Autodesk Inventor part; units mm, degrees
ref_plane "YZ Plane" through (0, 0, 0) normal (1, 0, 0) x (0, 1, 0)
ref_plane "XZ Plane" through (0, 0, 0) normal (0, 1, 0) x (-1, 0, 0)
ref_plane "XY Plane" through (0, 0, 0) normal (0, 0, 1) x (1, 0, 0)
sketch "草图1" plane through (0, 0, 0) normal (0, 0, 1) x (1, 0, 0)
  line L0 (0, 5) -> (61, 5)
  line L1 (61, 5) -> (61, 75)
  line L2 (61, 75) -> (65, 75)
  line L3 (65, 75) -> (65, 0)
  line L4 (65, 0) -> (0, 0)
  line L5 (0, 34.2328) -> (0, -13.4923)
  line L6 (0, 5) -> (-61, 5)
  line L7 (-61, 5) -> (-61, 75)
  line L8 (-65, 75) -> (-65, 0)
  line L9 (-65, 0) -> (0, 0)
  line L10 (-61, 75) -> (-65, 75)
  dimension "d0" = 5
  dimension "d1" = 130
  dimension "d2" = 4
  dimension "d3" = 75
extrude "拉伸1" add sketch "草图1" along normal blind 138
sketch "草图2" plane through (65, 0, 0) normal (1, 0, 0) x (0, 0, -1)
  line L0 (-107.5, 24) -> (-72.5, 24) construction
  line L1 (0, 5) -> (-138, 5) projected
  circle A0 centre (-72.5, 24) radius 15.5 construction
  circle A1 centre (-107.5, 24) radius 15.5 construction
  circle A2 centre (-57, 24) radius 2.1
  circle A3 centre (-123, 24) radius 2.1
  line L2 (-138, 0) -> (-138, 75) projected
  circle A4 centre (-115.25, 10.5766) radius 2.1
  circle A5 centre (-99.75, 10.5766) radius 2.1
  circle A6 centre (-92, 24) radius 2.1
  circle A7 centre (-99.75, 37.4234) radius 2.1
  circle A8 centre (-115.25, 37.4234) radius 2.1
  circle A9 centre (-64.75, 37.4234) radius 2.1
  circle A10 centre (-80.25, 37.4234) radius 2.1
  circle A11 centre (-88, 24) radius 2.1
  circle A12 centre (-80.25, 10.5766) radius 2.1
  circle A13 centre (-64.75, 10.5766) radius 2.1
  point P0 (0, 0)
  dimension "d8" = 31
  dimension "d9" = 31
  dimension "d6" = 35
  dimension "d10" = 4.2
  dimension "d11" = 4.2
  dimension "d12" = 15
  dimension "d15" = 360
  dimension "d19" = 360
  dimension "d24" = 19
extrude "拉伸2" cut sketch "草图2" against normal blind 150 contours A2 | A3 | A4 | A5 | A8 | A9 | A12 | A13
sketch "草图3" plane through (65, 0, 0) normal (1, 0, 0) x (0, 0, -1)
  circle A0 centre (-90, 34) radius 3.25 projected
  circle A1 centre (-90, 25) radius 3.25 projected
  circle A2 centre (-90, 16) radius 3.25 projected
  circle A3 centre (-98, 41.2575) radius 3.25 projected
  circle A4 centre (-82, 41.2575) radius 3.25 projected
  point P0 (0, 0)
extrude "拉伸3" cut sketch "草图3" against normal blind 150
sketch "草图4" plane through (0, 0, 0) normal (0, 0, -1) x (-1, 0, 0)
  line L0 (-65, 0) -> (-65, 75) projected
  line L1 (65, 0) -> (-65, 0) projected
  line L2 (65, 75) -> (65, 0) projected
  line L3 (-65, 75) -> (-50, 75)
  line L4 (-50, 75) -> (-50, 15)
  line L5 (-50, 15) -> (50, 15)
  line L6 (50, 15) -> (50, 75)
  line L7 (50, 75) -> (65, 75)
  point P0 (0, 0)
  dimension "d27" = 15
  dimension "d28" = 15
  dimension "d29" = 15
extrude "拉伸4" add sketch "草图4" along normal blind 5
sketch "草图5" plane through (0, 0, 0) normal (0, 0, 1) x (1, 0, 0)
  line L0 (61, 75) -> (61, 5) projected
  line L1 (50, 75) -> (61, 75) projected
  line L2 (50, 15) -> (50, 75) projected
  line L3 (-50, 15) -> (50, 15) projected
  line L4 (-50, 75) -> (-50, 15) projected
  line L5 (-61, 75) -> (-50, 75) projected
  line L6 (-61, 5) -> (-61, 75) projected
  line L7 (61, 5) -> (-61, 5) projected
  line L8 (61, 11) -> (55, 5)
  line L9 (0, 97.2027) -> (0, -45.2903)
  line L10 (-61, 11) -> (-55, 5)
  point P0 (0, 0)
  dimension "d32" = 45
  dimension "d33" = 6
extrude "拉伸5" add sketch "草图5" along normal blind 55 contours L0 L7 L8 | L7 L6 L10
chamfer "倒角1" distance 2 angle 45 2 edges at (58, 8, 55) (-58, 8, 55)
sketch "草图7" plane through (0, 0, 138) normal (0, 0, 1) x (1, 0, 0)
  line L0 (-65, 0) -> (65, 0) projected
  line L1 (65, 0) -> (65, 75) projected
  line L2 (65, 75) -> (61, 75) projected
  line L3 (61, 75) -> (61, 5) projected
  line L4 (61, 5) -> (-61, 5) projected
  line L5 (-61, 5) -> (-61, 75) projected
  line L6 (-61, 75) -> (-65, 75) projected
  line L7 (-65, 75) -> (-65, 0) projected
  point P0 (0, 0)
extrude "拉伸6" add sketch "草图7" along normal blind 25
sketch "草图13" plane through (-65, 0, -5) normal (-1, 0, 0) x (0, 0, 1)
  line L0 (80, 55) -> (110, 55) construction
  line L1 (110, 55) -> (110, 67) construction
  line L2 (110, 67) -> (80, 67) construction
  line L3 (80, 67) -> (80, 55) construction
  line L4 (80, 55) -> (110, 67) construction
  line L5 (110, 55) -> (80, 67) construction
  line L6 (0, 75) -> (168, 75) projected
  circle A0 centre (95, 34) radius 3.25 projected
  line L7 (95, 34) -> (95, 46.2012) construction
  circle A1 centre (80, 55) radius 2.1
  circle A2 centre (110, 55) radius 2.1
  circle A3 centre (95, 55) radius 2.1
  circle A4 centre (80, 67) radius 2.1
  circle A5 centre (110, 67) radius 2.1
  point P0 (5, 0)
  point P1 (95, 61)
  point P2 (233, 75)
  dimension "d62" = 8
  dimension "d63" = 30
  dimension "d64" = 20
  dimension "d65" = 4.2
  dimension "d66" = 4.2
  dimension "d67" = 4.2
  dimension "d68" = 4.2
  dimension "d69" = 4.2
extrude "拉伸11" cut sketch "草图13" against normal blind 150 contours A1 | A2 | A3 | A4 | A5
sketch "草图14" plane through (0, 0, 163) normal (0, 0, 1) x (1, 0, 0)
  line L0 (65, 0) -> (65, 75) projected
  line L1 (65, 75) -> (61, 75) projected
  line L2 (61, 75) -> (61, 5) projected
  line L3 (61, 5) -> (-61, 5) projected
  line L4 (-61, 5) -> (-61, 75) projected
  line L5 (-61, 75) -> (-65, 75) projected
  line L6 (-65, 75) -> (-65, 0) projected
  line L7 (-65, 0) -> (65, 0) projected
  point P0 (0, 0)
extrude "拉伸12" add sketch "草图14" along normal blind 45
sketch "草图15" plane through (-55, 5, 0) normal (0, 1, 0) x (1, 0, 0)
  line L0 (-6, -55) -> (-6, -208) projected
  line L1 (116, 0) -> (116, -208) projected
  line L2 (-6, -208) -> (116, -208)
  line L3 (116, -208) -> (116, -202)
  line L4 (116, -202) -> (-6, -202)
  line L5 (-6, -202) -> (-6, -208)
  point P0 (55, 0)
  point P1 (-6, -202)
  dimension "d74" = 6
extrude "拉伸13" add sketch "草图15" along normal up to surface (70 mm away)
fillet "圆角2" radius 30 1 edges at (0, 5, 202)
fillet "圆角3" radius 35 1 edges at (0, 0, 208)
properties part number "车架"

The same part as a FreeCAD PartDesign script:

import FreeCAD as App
import Part
import Sketcher
from FreeCAD import Vector


def edges_at(feature, points):
    """Names of the edges that pass closest to the given points."""
    edges = feature.Shape.Edges
    near = lambda p: min(range(len(edges)), key=lambda i: edges[i].distToShape(Part.Vertex(*p))[0])
    return sorted({f"Edge{near(p) + 1}" for p in points})


def add_polygon(sketch, points):
    """Adds a closed chain of lines whose ends are joined by coincident constraints."""
    first, n = sketch.GeometryCount, len(points)
    for a, b in zip(points, points[1:] + points[:1]):
        sketch.addGeometry(Part.LineSegment(App.Vector(*a, 0), App.Vector(*b, 0)), False)
    for i in range(n):
        sketch.addConstraint(Sketcher.Constraint("Coincident", first + i, 2, first + (i + 1) % n, 1))

doc = App.newDocument("Part")
body = doc.addObject("PartDesign::Body", "Body")

# Sketch on XY plane
sketch1 = body.newObject("Sketcher::SketchObject", "Sketch")
sketch1.AttachmentSupport = (doc.getObject("XY_Plane"), [""])
sketch1.MapMode = "FlatFace"
add_polygon(sketch1, [(61, 5), (-61, 5), (-61, 75), (-65, 75), (-65, 0), (65, 0), (65, 75), (61, 75)])  # lines 0-7
sketch1.addConstraint([
    Sketcher.Constraint("Horizontal", 0),
    Sketcher.Constraint("Vertical", 1),
    Sketcher.Constraint("Horizontal", 2),
    Sketcher.Constraint("Vertical", 3),
    Sketcher.Constraint("Horizontal", 4),
    Sketcher.Constraint("Vertical", 5),
    Sketcher.Constraint("Horizontal", 6),
    Sketcher.Constraint("Vertical", 7),
    Sketcher.Constraint("Symmetric", 3, 2, 4, 2, -1, 1),
    Sketcher.Constraint("Symmetric", 1, 2, 6, 2, -2),
    Sketcher.Constraint("DistanceX", 2, 2, 2, 1, 4.0),
    Sketcher.Constraint("DistanceX", 4, 1, 4, 2, 130.0),
    Sketcher.Constraint("DistanceY", 3, 2, 3, 1, 75.0),
    Sketcher.Constraint("DistanceY", -1, 1, 0, 2, 5.0),
])
pad1 = body.newObject("PartDesign::Pad", "Pad")
pad1.Profile = sketch1
pad1.Length = 138

# Sketch on YZ plane
sketch2 = body.newObject("Sketcher::SketchObject", "Sketch001")
sketch2.AttachmentSupport = (doc.getObject("YZ_Plane"), [""])
sketch2.MapMode = "FlatFace"
sketch2.AttachmentOffset = App.Placement(Vector(0, 0, 65), App.Rotation())
sketch2.addGeometry([
    Part.Circle(Vector(24, 57, 0), Vector(0, 0, 1), 2.1),  # 0
    Part.Circle(Vector(24, 123, 0), Vector(0, 0, 1), 2.1),  # 1
    Part.Circle(Vector(10.6, 115.2, 0), Vector(0, 0, 1), 2.1),  # 2
    Part.Circle(Vector(10.6, 99.8, 0), Vector(0, 0, 1), 2.1),  # 3
    Part.Circle(Vector(37.4, 115.2, 0), Vector(0, 0, 1), 2.1),  # 4
    Part.Circle(Vector(37.4, 64.8, 0), Vector(0, 0, 1), 2.1),  # 5
    Part.Circle(Vector(10.6, 80.2, 0), Vector(0, 0, 1), 2.1),  # 6
    Part.Circle(Vector(10.6, 64.8, 0), Vector(0, 0, 1), 2.1),  # 7
], False)
sketch2.addConstraint([
    Sketcher.Constraint("Equal", 0, 1),
    Sketcher.Constraint("Equal", 1, 2),
    Sketcher.Constraint("Equal", 2, 3),
    Sketcher.Constraint("Equal", 3, 4),
    Sketcher.Constraint("Equal", 4, 5),
    Sketcher.Constraint("Equal", 5, 6),
    Sketcher.Constraint("Equal", 6, 7),
    Sketcher.Constraint("Horizontal", 2, 3, 4, 3),
    Sketcher.Constraint("Horizontal", 5, 3, 7, 3),
    Sketcher.Constraint("Vertical", 0, 3, 1, 3),
    Sketcher.Constraint("Vertical", 2, 3, 3, 3),
    Sketcher.Constraint("Vertical", 4, 3, 5, 3),
    Sketcher.Constraint("Vertical", 3, 3, 6, 3),
    Sketcher.Constraint("Vertical", 6, 3, 7, 3),
    Sketcher.Constraint("Diameter", 0, 4.2),
    Sketcher.Constraint("DistanceY", 5, 3, 3, 3, 35.0),
    Sketcher.Constraint("DistanceY", 6, 3, 2, 3, 35.0),
    Sketcher.Constraint("DistanceX", -1, 1, 0, 3, 24.0),
    Sketcher.Constraint("DistanceY", -1, 1, 0, 3, 57.0),
    Sketcher.Constraint("DistanceY", -1, 1, 1, 3, 123.0),
    Sketcher.Constraint("DistanceY", 3, 3, 2, 3, 15.5),
    Sketcher.Constraint("DistanceY", -1, 1, 2, 3, 115.25),
    Sketcher.Constraint("DistanceX", -1, 1, 2, 3, 10.5766),
    Sketcher.Constraint("DistanceX", -1, 1, 4, 3, 37.4234),
])
pocket1 = body.newObject("PartDesign::Pocket", "Pocket")
pocket1.Profile = sketch2
pocket1.Length = 150

# Sketch on YZ plane
sketch3 = body.newObject("Sketcher::SketchObject", "Sketch002")
sketch3.AttachmentSupport = (doc.getObject("YZ_Plane"), [""])
sketch3.MapMode = "FlatFace"
sketch3.AttachmentOffset = App.Placement(Vector(0, 0, 65), App.Rotation())
sketch3.addGeometry([
    Part.Circle(Vector(34, 90, 0), Vector(0, 0, 1), 3.2),  # 0
    Part.Circle(Vector(25, 90, 0), Vector(0, 0, 1), 3.2),  # 1
    Part.Circle(Vector(16, 90, 0), Vector(0, 0, 1), 3.2),  # 2
    Part.Circle(Vector(41.3, 98, 0), Vector(0, 0, 1), 3.2),  # 3
    Part.Circle(Vector(41.3, 82, 0), Vector(0, 0, 1), 3.2),  # 4
], False)
sketch3.addConstraint([
    Sketcher.Constraint("Equal", 0, 1),
    Sketcher.Constraint("Equal", 1, 2),
    Sketcher.Constraint("Equal", 2, 3),
    Sketcher.Constraint("Equal", 3, 4),
    Sketcher.Constraint("Horizontal", 0, 3, 1, 3),
    Sketcher.Constraint("Horizontal", 1, 3, 2, 3),
    Sketcher.Constraint("Vertical", 3, 3, 4, 3),
    Sketcher.Constraint("Diameter", 0, 6.5),
    Sketcher.Constraint("DistanceX", -1, 1, 0, 3, 34.0),
    Sketcher.Constraint("DistanceY", -1, 1, 0, 3, 90.0),
    Sketcher.Constraint("DistanceX", -1, 1, 1, 3, 25.0),
    Sketcher.Constraint("DistanceX", -1, 1, 2, 3, 16.0),
    Sketcher.Constraint("DistanceY", -1, 1, 3, 3, 98.0),
    Sketcher.Constraint("DistanceY", -1, 1, 4, 3, 82.0),
    Sketcher.Constraint("DistanceX", -1, 1, 3, 3, 41.2575),
])
pocket2 = body.newObject("PartDesign::Pocket", "Pocket001")
pocket2.Profile = sketch3
pocket2.Length = 150

# Sketch on XY plane
sketch4 = body.newObject("Sketcher::SketchObject", "Sketch003")
sketch4.AttachmentSupport = (doc.getObject("XY_Plane"), [""])
sketch4.MapMode = "FlatFace"
add_polygon(sketch4, [(65, 75), (65, 0), (-65, 0), (-65, 75), (-50, 75), (-50, 15), (50, 15), (50, 75)])  # lines 0-7
sketch4.addConstraint([
    Sketcher.Constraint("Vertical", 0),
    Sketcher.Constraint("Horizontal", 1),
    Sketcher.Constraint("Vertical", 2),
    Sketcher.Constraint("Horizontal", 3),
    Sketcher.Constraint("Vertical", 4),
    Sketcher.Constraint("Horizontal", 5),
    Sketcher.Constraint("Vertical", 6),
    Sketcher.Constraint("Horizontal", 7),
    Sketcher.Constraint("Symmetric", 0, 2, 1, 2, -1, 1),
    Sketcher.Constraint("Symmetric", 3, 2, 6, 2, -2),
    Sketcher.Constraint("DistanceX", 3, 1, 3, 2, 15.0),
    Sketcher.Constraint("DistanceY", -1, 1, 4, 2, 15.0),
    Sketcher.Constraint("DistanceX", 1, 2, 1, 1, 130.0),
    Sketcher.Constraint("DistanceY", 0, 2, 0, 1, 75.0),
])
pad2 = body.newObject("PartDesign::Pad", "Pad001")
pad2.Profile = sketch4
pad2.Length = 5
pad2.Reversed = True

# Sketch on XY plane
sketch5 = body.newObject("Sketcher::SketchObject", "Sketch004")
sketch5.AttachmentSupport = (doc.getObject("XY_Plane"), [""])
sketch5.MapMode = "FlatFace"
add_polygon(sketch5, [(61, 5), (61, 11), (55, 5)])  # lines 0-2
add_polygon(sketch5, [(-61, 5), (-55, 5), (-61, 11)])  # lines 3-5
sketch5.addConstraint([
    Sketcher.Constraint("Vertical", 0),
    Sketcher.Constraint("Horizontal", 2),
    Sketcher.Constraint("Horizontal", 3),
    Sketcher.Constraint("Vertical", 5),
    Sketcher.Constraint("Symmetric", 1, 2, 3, 2, -2),
    Sketcher.Constraint("Symmetric", 0, 2, 4, 2, -2),
    Sketcher.Constraint("Perpendicular", 1, 4),
    Sketcher.Constraint("DistanceX", 2, 1, 2, 2, 6.0),
    Sketcher.Constraint("DistanceX", -1, 1, 0, 2, 61.0),
    Sketcher.Constraint("DistanceY", -1, 1, 0, 2, 11.0),
])
pad3 = body.newObject("PartDesign::Pad", "Pad002")
pad3.Profile = sketch5
pad3.Length = 55
doc.recompute()

chamfer = body.newObject("PartDesign::Chamfer", "Chamfer")
chamfer.Base = (pad3, edges_at(pad3, [(58, 8, 55), (-58, 8, 55)]))
chamfer.Size = 2

# Sketch on XY plane
sketch6 = body.newObject("Sketcher::SketchObject", "Sketch005")
sketch6.AttachmentSupport = (doc.getObject("XY_Plane"), [""])
sketch6.MapMode = "FlatFace"
sketch6.AttachmentOffset = App.Placement(Vector(0, 0, 138), App.Rotation())
add_polygon(sketch6, [(-65, 75), (-65, 0), (65, 0), (65, 75), (61, 75), (61, 5), (-61, 5), (-61, 75)])  # lines 0-7
sketch6.addConstraint([
    Sketcher.Constraint("Vertical", 0),
    Sketcher.Constraint("Horizontal", 1),
    Sketcher.Constraint("Vertical", 2),
    Sketcher.Constraint("Horizontal", 3),
    Sketcher.Constraint("Vertical", 4),
    Sketcher.Constraint("Horizontal", 5),
    Sketcher.Constraint("Vertical", 6),
    Sketcher.Constraint("Horizontal", 7),
    Sketcher.Constraint("Symmetric", 0, 2, 1, 2, -1, 1),
    Sketcher.Constraint("Symmetric", 3, 2, 6, 2, -2),
    Sketcher.Constraint("DistanceX", 1, 1, 1, 2, 130.0),
    Sketcher.Constraint("DistanceX", 3, 2, 3, 1, 4.0),
    Sketcher.Constraint("DistanceY", 0, 2, 0, 1, 75.0),
    Sketcher.Constraint("DistanceY", 4, 2, 4, 1, 70.0),
])
pad4 = body.newObject("PartDesign::Pad", "Pad003")
pad4.Profile = sketch6
pad4.Length = 25

# Sketch on YZ plane
sketch7 = body.newObject("Sketcher::SketchObject", "Sketch006")
sketch7.AttachmentSupport = (doc.getObject("YZ_Plane"), [""])
sketch7.MapMode = "FlatFace"
sketch7.AttachmentOffset = App.Placement(Vector(0, 0, -65), App.Rotation())
sketch7.addGeometry([
    Part.Circle(Vector(55, 75, 0), Vector(0, 0, 1), 2.1),  # 0
    Part.Circle(Vector(55, 105, 0), Vector(0, 0, 1), 2.1),  # 1
    Part.Circle(Vector(55, 90, 0), Vector(0, 0, 1), 2.1),  # 2
    Part.Circle(Vector(67, 75, 0), Vector(0, 0, 1), 2.1),  # 3
    Part.Circle(Vector(67, 105, 0), Vector(0, 0, 1), 2.1),  # 4
], False)
sketch7.addConstraint([
    Sketcher.Constraint("Equal", 0, 1),
    Sketcher.Constraint("Equal", 1, 2),
    Sketcher.Constraint("Equal", 2, 3),
    Sketcher.Constraint("Equal", 3, 4),
    Sketcher.Constraint("Horizontal", 0, 3, 3, 3),
    Sketcher.Constraint("Horizontal", 1, 3, 4, 3),
    Sketcher.Constraint("Vertical", 0, 3, 1, 3),
    Sketcher.Constraint("Vertical", 1, 3, 2, 3),
    Sketcher.Constraint("Vertical", 3, 3, 4, 3),
    Sketcher.Constraint("Diameter", 0, 4.2),
    Sketcher.Constraint("DistanceY", 0, 3, 1, 3, 30.0),
    Sketcher.Constraint("DistanceX", -1, 1, 0, 3, 55.0),
    Sketcher.Constraint("DistanceY", -1, 1, 0, 3, 75.0),
    Sketcher.Constraint("DistanceY", -1, 1, 2, 3, 90.0),
    Sketcher.Constraint("DistanceX", -1, 1, 3, 3, 67.0),
])
pocket3 = body.newObject("PartDesign::Pocket", "Pocket002")
pocket3.Profile = sketch7
pocket3.Length = 150
pocket3.Reversed = True

# Sketch on XY plane
sketch8 = body.newObject("Sketcher::SketchObject", "Sketch007")
sketch8.AttachmentSupport = (doc.getObject("XY_Plane"), [""])
sketch8.MapMode = "FlatFace"
sketch8.AttachmentOffset = App.Placement(Vector(0, 0, 163), App.Rotation())
add_polygon(sketch8, [(-65, 0), (65, 0), (65, 75), (61, 75), (61, 5), (-61, 5), (-61, 75), (-65, 75)])  # lines 0-7
sketch8.addConstraint([
    Sketcher.Constraint("Horizontal", 0),
    Sketcher.Constraint("Vertical", 1),
    Sketcher.Constraint("Horizontal", 2),
    Sketcher.Constraint("Vertical", 3),
    Sketcher.Constraint("Horizontal", 4),
    Sketcher.Constraint("Vertical", 5),
    Sketcher.Constraint("Horizontal", 6),
    Sketcher.Constraint("Vertical", 7),
    Sketcher.Constraint("Symmetric", 0, 2, 7, 2, -1, 1),
    Sketcher.Constraint("Symmetric", 2, 2, 5, 2, -2),
    Sketcher.Constraint("DistanceX", 0, 1, 0, 2, 130.0),
    Sketcher.Constraint("DistanceX", 2, 2, 2, 1, 4.0),
    Sketcher.Constraint("DistanceY", 1, 1, 1, 2, 75.0),
    Sketcher.Constraint("DistanceY", 3, 2, 3, 1, 70.0),
])
pad5 = body.newObject("PartDesign::Pad", "Pad004")
pad5.Profile = sketch8
pad5.Length = 45

# Sketch on XZ plane
sketch9 = body.newObject("Sketcher::SketchObject", "Sketch008")
sketch9.AttachmentSupport = (doc.getObject("XZ_Plane"), [""])
sketch9.MapMode = "FlatFace"
sketch9.AttachmentOffset = App.Placement(Vector(0, 0, -5), App.Rotation())
add_polygon(sketch9, [(61, 202), (-61, 202), (-61, 208), (61, 208)])  # lines 0-3
sketch9.addConstraint([
    Sketcher.Constraint("Horizontal", 0),
    Sketcher.Constraint("Vertical", 1),
    Sketcher.Constraint("Horizontal", 2),
    Sketcher.Constraint("Vertical", 3),
    Sketcher.Constraint("DistanceY", 1, 1, 1, 2, 6.0),
    Sketcher.Constraint("DistanceX", 0, 2, 0, 1, 122.0),
    Sketcher.Constraint("DistanceX", 0, 2, -1, 1, 61.0),
    Sketcher.Constraint("DistanceY", -1, 1, 0, 2, 202.0),
])
pad6 = body.newObject("PartDesign::Pad", "Pad005")
pad6.Profile = sketch9
pad6.Length = 70
pad6.Reversed = True
doc.recompute()

fillet = body.newObject("PartDesign::Fillet", "Fillet")
fillet.Base = (pad6, edges_at(pad6, [(0, 5, 202)]))
fillet.Radius = 30
doc.recompute()

fillet2 = body.newObject("PartDesign::Fillet", "Fillet001")
fillet2.Base = (fillet, edges_at(fillet, [(0, 0, 208)]))
fillet2.Radius = 35

doc.recompute()
